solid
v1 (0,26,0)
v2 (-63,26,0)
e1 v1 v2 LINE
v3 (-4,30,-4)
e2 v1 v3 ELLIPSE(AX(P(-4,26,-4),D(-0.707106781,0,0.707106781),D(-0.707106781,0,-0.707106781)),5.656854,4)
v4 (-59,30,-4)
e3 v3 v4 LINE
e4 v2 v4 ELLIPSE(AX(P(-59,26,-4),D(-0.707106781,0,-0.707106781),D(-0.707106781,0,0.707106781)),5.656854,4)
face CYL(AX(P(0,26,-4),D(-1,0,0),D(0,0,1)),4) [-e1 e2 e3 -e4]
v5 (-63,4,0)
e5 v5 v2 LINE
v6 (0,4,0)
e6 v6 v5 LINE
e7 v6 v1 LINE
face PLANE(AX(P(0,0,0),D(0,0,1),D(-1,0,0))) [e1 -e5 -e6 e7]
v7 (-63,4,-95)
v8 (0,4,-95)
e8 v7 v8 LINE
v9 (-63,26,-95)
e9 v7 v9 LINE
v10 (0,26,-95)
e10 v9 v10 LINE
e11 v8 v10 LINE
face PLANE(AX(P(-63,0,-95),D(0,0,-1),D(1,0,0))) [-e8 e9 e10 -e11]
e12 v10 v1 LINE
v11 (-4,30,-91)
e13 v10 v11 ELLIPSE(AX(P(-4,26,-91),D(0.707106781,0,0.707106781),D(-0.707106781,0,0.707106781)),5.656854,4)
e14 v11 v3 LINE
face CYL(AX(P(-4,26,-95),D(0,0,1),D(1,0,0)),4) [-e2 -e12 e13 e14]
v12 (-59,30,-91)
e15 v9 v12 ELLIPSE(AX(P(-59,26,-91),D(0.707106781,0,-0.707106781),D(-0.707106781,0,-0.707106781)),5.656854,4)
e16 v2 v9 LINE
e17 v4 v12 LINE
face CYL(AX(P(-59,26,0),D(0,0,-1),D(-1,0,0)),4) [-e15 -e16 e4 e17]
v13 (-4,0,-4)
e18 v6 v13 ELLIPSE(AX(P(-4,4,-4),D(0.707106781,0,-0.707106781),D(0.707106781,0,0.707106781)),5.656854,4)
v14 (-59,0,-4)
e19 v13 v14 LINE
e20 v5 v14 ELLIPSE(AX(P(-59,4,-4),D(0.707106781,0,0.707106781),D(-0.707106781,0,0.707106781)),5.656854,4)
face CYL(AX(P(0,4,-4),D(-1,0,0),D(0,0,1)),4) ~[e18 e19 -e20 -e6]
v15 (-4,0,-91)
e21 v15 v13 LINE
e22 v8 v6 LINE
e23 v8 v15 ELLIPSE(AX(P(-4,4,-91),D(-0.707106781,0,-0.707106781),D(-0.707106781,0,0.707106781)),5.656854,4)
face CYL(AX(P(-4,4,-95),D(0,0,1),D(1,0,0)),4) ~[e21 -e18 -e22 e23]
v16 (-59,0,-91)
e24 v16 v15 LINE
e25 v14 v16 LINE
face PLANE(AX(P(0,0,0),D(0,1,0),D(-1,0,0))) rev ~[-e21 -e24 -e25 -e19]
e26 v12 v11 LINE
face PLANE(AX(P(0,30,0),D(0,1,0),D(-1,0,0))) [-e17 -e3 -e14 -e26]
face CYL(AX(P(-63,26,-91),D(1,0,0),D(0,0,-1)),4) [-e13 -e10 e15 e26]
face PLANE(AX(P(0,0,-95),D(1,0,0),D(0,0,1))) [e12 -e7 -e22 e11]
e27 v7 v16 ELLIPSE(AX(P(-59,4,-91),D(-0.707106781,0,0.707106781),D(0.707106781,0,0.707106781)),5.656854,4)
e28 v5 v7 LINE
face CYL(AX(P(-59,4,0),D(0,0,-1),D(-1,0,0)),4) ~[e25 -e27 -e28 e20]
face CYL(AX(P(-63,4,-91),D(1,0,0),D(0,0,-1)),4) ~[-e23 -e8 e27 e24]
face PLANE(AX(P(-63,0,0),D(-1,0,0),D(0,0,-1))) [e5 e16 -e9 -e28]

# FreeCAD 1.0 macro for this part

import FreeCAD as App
import Part
import Sketcher

V = App.Vector


def edges_at(feature, points):
    """Names of the edges that pass closest to the given points."""
    edges = feature.Shape.Edges
    near = lambda p: min(range(len(edges)), key=lambda i: edges[i].distToShape(Part.Vertex(*p))[0])
    return sorted({f"Edge{near(p) + 1}" for p in points})

doc = App.newDocument("Part")
body = doc.addObject("PartDesign::Body", "Body")

# Sketch on XZ plane
sketch1 = doc.addObject("Sketcher::SketchObject", "Sketch")
body.addObject(sketch1)
sketch1.AttachmentSupport = (doc.XZ_Plane, [""])
sketch1.MapMode = "FlatFace"
sketch1.addGeometry(Part.LineSegment(V(-63, 0, 0), V(0, 0, 0)), False)
sketch1.addGeometry(Part.LineSegment(V(0, 0, 0), V(0, -95, 0)), False)
sketch1.addGeometry(Part.LineSegment(V(0, -95, 0), V(-63, -95, 0)), False)
sketch1.addGeometry(Part.LineSegment(V(-63, -95, 0), V(-63, 0, 0)), False)
sketch1.addConstraint(Sketcher.Constraint("Coincident", 0, 2, 1, 1))
sketch1.addConstraint(Sketcher.Constraint("Coincident", 1, 2, 2, 1))
sketch1.addConstraint(Sketcher.Constraint("Coincident", 2, 2, 3, 1))
sketch1.addConstraint(Sketcher.Constraint("Coincident", 3, 2, 0, 1))
sketch1.addConstraint(Sketcher.Constraint("Horizontal", 0))
sketch1.addConstraint(Sketcher.Constraint("Vertical", 1))
sketch1.addConstraint(Sketcher.Constraint("Horizontal", 2))
sketch1.addConstraint(Sketcher.Constraint("Vertical", 3))
sketch1.addConstraint(Sketcher.Constraint("Coincident", 0, 2, -1, 1))
sketch1.addConstraint(Sketcher.Constraint("DistanceX", 0, 1, 0, 2, 63.0))
sketch1.addConstraint(Sketcher.Constraint("DistanceY", 1, 2, 1, 1, 95.0))
pad1 = doc.addObject("PartDesign::Pad", "Pad")
body.addObject(pad1)
pad1.Profile = sketch1
pad1.Length = 30
pad1.Reversed = True
doc.recompute()

fillet = doc.addObject("PartDesign::Fillet", "Fillet")
body.addObject(fillet)
fillet.Base = (pad1, edges_at(pad1, [
    (-31.5, 30, 0),
    (0, 30, -47.5),
    (-63, 30, -47.5),
    (-31.5, 30, -95),
    (0, 0, -47.5),
    (-31.5, 0, 0),
    (-31.5, 0, -95),
    (-63, 0, -47.5),
]))
fillet.Radius = 4

doc.recompute()
